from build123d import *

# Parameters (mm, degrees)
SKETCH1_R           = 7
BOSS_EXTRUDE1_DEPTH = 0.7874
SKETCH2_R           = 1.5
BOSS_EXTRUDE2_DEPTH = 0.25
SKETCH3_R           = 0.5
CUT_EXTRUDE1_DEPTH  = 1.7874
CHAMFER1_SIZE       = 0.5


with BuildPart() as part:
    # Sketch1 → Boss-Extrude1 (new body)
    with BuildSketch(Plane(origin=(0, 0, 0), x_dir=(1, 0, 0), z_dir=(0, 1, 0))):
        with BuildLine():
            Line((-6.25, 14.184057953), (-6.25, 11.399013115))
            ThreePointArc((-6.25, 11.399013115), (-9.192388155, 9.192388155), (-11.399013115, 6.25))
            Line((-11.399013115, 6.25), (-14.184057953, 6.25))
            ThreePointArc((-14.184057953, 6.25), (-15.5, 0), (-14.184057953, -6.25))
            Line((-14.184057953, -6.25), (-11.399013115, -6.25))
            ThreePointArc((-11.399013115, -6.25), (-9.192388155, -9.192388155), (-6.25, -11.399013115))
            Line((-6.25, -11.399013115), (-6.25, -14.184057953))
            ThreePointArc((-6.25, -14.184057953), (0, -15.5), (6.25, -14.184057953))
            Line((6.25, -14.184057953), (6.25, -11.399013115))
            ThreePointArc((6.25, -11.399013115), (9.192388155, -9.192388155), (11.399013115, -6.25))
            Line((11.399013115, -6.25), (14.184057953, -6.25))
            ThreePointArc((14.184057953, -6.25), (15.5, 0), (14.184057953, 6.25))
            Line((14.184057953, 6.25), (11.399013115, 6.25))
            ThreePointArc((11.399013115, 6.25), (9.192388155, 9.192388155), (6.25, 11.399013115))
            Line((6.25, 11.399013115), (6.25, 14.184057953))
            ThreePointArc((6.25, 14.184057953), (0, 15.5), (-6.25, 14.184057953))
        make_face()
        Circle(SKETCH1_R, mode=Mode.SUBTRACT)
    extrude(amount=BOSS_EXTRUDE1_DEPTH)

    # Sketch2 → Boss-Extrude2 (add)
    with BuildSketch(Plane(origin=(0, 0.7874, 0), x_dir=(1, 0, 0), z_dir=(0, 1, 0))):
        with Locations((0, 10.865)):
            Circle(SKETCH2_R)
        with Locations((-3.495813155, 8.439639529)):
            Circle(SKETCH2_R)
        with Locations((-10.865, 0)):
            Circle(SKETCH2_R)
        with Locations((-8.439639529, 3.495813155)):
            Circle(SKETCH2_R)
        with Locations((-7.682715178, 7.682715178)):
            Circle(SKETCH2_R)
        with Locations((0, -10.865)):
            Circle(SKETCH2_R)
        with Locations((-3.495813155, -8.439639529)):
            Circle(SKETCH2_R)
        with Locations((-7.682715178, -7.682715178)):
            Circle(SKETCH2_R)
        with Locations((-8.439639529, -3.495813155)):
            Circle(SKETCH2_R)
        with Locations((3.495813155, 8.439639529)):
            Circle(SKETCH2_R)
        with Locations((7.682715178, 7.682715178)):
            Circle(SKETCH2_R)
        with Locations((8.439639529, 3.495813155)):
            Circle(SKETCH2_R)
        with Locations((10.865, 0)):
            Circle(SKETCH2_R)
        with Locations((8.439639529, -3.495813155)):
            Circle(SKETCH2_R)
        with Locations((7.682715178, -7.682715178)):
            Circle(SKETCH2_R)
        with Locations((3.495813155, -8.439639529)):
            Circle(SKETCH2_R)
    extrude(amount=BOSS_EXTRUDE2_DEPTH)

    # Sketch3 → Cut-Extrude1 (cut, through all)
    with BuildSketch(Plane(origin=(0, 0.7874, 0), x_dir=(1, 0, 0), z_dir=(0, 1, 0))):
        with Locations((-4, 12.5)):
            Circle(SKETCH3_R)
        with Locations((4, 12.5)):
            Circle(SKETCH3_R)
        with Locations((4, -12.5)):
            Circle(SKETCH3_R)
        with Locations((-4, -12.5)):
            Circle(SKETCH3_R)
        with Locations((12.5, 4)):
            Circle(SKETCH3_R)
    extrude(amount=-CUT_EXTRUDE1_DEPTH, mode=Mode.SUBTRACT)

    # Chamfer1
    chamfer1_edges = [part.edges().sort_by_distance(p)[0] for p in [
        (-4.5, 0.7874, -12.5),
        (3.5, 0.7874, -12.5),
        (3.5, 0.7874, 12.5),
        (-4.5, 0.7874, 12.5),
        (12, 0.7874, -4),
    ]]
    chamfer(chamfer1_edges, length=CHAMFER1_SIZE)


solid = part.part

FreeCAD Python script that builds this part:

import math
import FreeCAD as App
import Part
import Sketcher


def edges_at(feature, points):
    """Names of the edges that pass closest to the given points."""
    edges = feature.Shape.Edges
    near = lambda p: min(range(len(edges)), key=lambda i: edges[i].distToShape(Part.Vertex(*p))[0])
    return sorted({f"Edge{near(p) + 1}" for p in points})

doc = App.newDocument("Part")
params = doc.addObject("Spreadsheet::Sheet", "Params")
for row, (alias, value) in enumerate([
    ("sketch1_diameter", "14 mm"),
    ("sketch1_radius", "13 mm"),
    ("sketch1_radius2", "15.5 mm"),
    ("pad1_length", "0.7874 mm"),
    ("sketch2_diameter", "3 mm"),
    ("pad2_length", "0.25 mm"),
    ("sketch3_diameter", "1 mm"),
    ("chamfer_size", "0.5 mm"),
], start=1):
    params.set(f"A{row}", alias)
    params.set(f"B{row}", "=" + value)
    params.setAlias(f"B{row}", alias)

body = doc.addObject("PartDesign::Body", "Body")

sketch1 = doc.addObject("Sketcher::SketchObject", "Sketch")
body.addObject(sketch1)
sketch1.AttachmentSupport = (doc.XZ_Plane, [""])
sketch1.MapMode = "FlatFace"
sketch1.addGeometry([
    Part.LineSegment(App.Vector(-6.2, -14.2, 0), App.Vector(-6.2, -11.4, 0)),
    Part.ArcOfCircle(Part.Circle(App.Vector(0, 0, 0), App.Vector(0, 0, 1), 13), math.radians(-151), math.radians(-119)),
    Part.LineSegment(App.Vector(-11.4, -6.2, 0), App.Vector(-14.2, -6.2, 0)),
    Part.ArcOfCircle(Part.Circle(App.Vector(0, 0, 0), App.Vector(0, 0, 1), 15.5), math.radians(156), math.radians(204)),
    Part.LineSegment(App.Vector(-14.2, 6.2, 0), App.Vector(-11.4, 6.2, 0)),
    Part.ArcOfCircle(Part.Circle(App.Vector(0, 0, 0), App.Vector(0, 0, 1), 13), math.radians(119), math.radians(151)),
    Part.LineSegment(App.Vector(-6.2, 11.4, 0), App.Vector(-6.2, 14.2, 0)),
    Part.ArcOfCircle(Part.Circle(App.Vector(0, 0, 0), App.Vector(0, 0, 1), 15.5), math.radians(66), math.radians(114)),
    Part.LineSegment(App.Vector(6.2, 14.2, 0), App.Vector(6.2, 11.4, 0)),
    Part.ArcOfCircle(Part.Circle(App.Vector(0, 0, 0), App.Vector(0, 0, 1), 13), math.radians(29), math.radians(61)),
    Part.LineSegment(App.Vector(11.4, 6.2, 0), App.Vector(14.2, 6.2, 0)),
    Part.ArcOfCircle(Part.Circle(App.Vector(0, 0, 0), App.Vector(0, 0, 1), 15.5), math.radians(-24), math.radians(24)),
    Part.LineSegment(App.Vector(14.2, -6.2, 0), App.Vector(11.4, -6.2, 0)),
    Part.ArcOfCircle(Part.Circle(App.Vector(0, 0, 0), App.Vector(0, 0, 1), 13), math.radians(-61), math.radians(-29)),
    Part.LineSegment(App.Vector(6.2, -11.4, 0), App.Vector(6.2, -14.2, 0)),
    Part.ArcOfCircle(Part.Circle(App.Vector(0, 0, 0), App.Vector(0, 0, 1), 15.5), math.radians(-114), math.radians(-66)),
    Part.Circle(App.Vector(0, 0, 0), App.Vector(0, 0, 1), 7),
], False)
sketch1.addConstraint([
    Sketcher.Constraint("Coincident", 0, 2, 1, 2),
    Sketcher.Constraint("Coincident", 1, 1, 2, 1),
    Sketcher.Constraint("Coincident", 2, 2, 3, 2),
    Sketcher.Constraint("Coincident", 3, 1, 4, 1),
    Sketcher.Constraint("Coincident", 4, 2, 5, 2),
    Sketcher.Constraint("Coincident", 5, 1, 6, 1),
    Sketcher.Constraint("Coincident", 6, 2, 7, 2),
    Sketcher.Constraint("Coincident", 7, 1, 8, 1),
    Sketcher.Constraint("Coincident", 8, 2, 9, 2),
    Sketcher.Constraint("Coincident", 9, 1, 10, 1),
    Sketcher.Constraint("Coincident", 10, 2, 11, 2),
    Sketcher.Constraint("Coincident", 11, 1, 12, 1),
    Sketcher.Constraint("Coincident", 12, 2, 13, 2),
    Sketcher.Constraint("Coincident", 13, 1, 14, 1),
    Sketcher.Constraint("Coincident", 14, 2, 15, 2),
    Sketcher.Constraint("Coincident", 15, 1, 0, 1),
    Sketcher.Constraint("Vertical", 0),
    Sketcher.Constraint("Horizontal", 2),
    Sketcher.Constraint("Horizontal", 4),
    Sketcher.Constraint("Vertical", 6),
    Sketcher.Constraint("Vertical", 8),
    Sketcher.Constraint("Horizontal", 10),
    Sketcher.Constraint("Horizontal", 12),
    Sketcher.Constraint("Vertical", 14),
    Sketcher.Constraint("Coincident", 1, 3, -1, 1),
    Sketcher.Constraint("Coincident", 3, 3, -1, 1),
    Sketcher.Constraint("Coincident", 5, 3, -1, 1),
    Sketcher.Constraint("Coincident", 7, 3, -1, 1),
    Sketcher.Constraint("Coincident", 9, 3, -1, 1),
    Sketcher.Constraint("Coincident", 11, 3, -1, 1),
    Sketcher.Constraint("Coincident", 13, 3, -1, 1),
    Sketcher.Constraint("Coincident", 15, 3, -1, 1),
    Sketcher.Constraint("Coincident", 16, 3, -1, 1),
    Sketcher.Constraint("Equal", 1, 5),
    Sketcher.Constraint("Equal", 3, 7),
    Sketcher.Constraint("Equal", 5, 9),
    Sketcher.Constraint("Equal", 7, 11),
    Sketcher.Constraint("Equal", 9, 13),
    Sketcher.Constraint("Equal", 11, 15),
    Sketcher.Constraint("Horizontal", 6, 2, 7, 1),
    Sketcher.Constraint("Horizontal", 4, 2, 9, 1),
    Sketcher.Constraint("Horizontal", 2, 2, 11, 1),
    Sketcher.Constraint("Horizontal", 0, 2, 13, 1),
    Sketcher.Constraint("Vertical", 2, 2, 3, 1),
    Sketcher.Constraint("Vertical", 0, 2, 5, 1),
    Sketcher.Constraint("Equal", 12, 0),
    Sketcher.Constraint("Diameter", 16, 14.0),
    Sketcher.Constraint("Radius", 1, 13.0),
    Sketcher.Constraint("Radius", 3, 15.5),
    Sketcher.Constraint("DistanceY", 2, 2, 3, 1, 12.5),
])
sketch1.setExpression("Constraints[46]", "Params.sketch1_diameter")
sketch1.setExpression("Constraints[47]", "Params.sketch1_radius")
sketch1.setExpression("Constraints[48]", "Params.sketch1_radius2")
pad1 = doc.addObject("PartDesign::Pad", "Pad")
body.addObject(pad1)
pad1.Profile = sketch1
pad1.setExpression("Length", "Params.pad1_length")
pad1.Reversed = True

sketch2 = doc.addObject("Sketcher::SketchObject", "Sketch001")
body.addObject(sketch2)
sketch2.AttachmentSupport = (doc.XZ_Plane, [""])
sketch2.MapMode = "FlatFace"
sketch2.AttachmentOffset = App.Placement(App.Vector(0, 0, -0.7874), App.Rotation())
sketch2.addGeometry([
    Part.Circle(App.Vector(0, -10.9, 0), App.Vector(0, 0, 1), 1.5),
    Part.Circle(App.Vector(-3.5, -8.4, 0), App.Vector(0, 0, 1), 1.5),
    Part.Circle(App.Vector(-10.9, 0, 0), App.Vector(0, 0, 1), 1.5),
    Part.Circle(App.Vector(-8.4, -3.5, 0), App.Vector(0, 0, 1), 1.5),
    Part.Circle(App.Vector(-7.7, -7.7, 0), App.Vector(0, 0, 1), 1.5),
    Part.Circle(App.Vector(0, 10.9, 0), App.Vector(0, 0, 1), 1.5),
    Part.Circle(App.Vector(-3.5, 8.4, 0), App.Vector(0, 0, 1), 1.5),
    Part.Circle(App.Vector(-7.7, 7.7, 0), App.Vector(0, 0, 1), 1.5),
    Part.Circle(App.Vector(-8.4, 3.5, 0), App.Vector(0, 0, 1), 1.5),
    Part.Circle(App.Vector(3.5, -8.4, 0), App.Vector(0, 0, 1), 1.5),
    Part.Circle(App.Vector(7.7, -7.7, 0), App.Vector(0, 0, 1), 1.5),
    Part.Circle(App.Vector(8.4, -3.5, 0), App.Vector(0, 0, 1), 1.5),
    Part.Circle(App.Vector(10.9, 0, 0), App.Vector(0, 0, 1), 1.5),
    Part.Circle(App.Vector(8.4, 3.5, 0), App.Vector(0, 0, 1), 1.5),
    Part.Circle(App.Vector(7.7, 7.7, 0), App.Vector(0, 0, 1), 1.5),
    Part.Circle(App.Vector(3.5, 8.4, 0), App.Vector(0, 0, 1), 1.5),
], False)
sketch2.addConstraint([
    Sketcher.Constraint("Equal", 0, 1),
    Sketcher.Constraint("Equal", 1, 2),
    Sketcher.Constraint("Equal", 2, 3),
    Sketcher.Constraint("Equal", 3, 4),
    Sketcher.Constraint("Equal", 4, 5),
    Sketcher.Constraint("Equal", 5, 6),
    Sketcher.Constraint("Equal", 6, 7),
    Sketcher.Constraint("Equal", 7, 8),
    Sketcher.Constraint("Equal", 8, 9),
    Sketcher.Constraint("Equal", 9, 10),
    Sketcher.Constraint("Equal", 10, 11),
    Sketcher.Constraint("Equal", 11, 12),
    Sketcher.Constraint("Equal", 12, 13),
    Sketcher.Constraint("Equal", 13, 14),
    Sketcher.Constraint("Equal", 14, 15),
    Sketcher.Constraint("Symmetric", 0, 3, 5, 3, -1, 1),
    Sketcher.Constraint("Symmetric", 6, 3, 9, 3, -1, 1),
    Sketcher.Constraint("Symmetric", 7, 3, 10, 3, -1, 1),
    Sketcher.Constraint("Symmetric", 8, 3, 11, 3, -1, 1),
    Sketcher.Constraint("Symmetric", 2, 3, 12, 3, -1, 1),
    Sketcher.Constraint("Symmetric", 3, 3, 13, 3, -1, 1),
    Sketcher.Constraint("Symmetric", 4, 3, 14, 3, -1, 1),
    Sketcher.Constraint("Symmetric", 1, 3, 15, 3, -1, 1),
    Sketcher.Constraint("Symmetric", 1, 3, 9, 3, -2),
    Sketcher.Constraint("Symmetric", 4, 3, 10, 3, -2),
    Sketcher.Constraint("Symmetric", 3, 3, 11, 3, -2),
    Sketcher.Constraint("PointOnObject", 0, 3, -2),
    Sketcher.Constraint("PointOnObject", 2, 3, -1),
    Sketcher.Constraint("Diameter", 0, 3.0),
    Sketcher.Constraint("DistanceY", 0, 3, 5, 3, 21.73),
    Sketcher.Constraint("DistanceX", 2, 3, -1, 1, 10.865),
    Sketcher.Constraint("DistanceY", 1, 3, -1, 1, 8.43964),
    Sketcher.Constraint("DistanceX", 3, 3, -1, 1, 8.43964),
    Sketcher.Constraint("DistanceY", 3, 3, 7, 3, 11.178528),
    Sketcher.Constraint("DistanceY", 4, 3, 7, 3, 15.36543),
    Sketcher.Constraint("DistanceX", 4, 3, 9, 3, 11.178528),
    Sketcher.Constraint("DistanceX", 4, 3, 10, 3, 15.36543),
])
sketch2.setExpression("Constraints[28]", "Params.sketch2_diameter")
pad2 = doc.addObject("PartDesign::Pad", "Pad001")
body.addObject(pad2)
pad2.Profile = sketch2
pad2.setExpression("Length", "Params.pad2_length")
pad2.Reversed = True

sketch3 = doc.addObject("Sketcher::SketchObject", "Sketch002")
body.addObject(sketch3)
sketch3.AttachmentSupport = (doc.XZ_Plane, [""])
sketch3.MapMode = "FlatFace"
sketch3.AttachmentOffset = App.Placement(App.Vector(0, 0, -0.7874), App.Rotation())
sketch3.addGeometry([
    Part.Circle(App.Vector(-4, -12.5, 0), App.Vector(0, 0, 1), 0.5),
    Part.Circle(App.Vector(4, -12.5, 0), App.Vector(0, 0, 1), 0.5),
    Part.Circle(App.Vector(4, 12.5, 0), App.Vector(0, 0, 1), 0.5),
    Part.Circle(App.Vector(-4, 12.5, 0), App.Vector(0, 0, 1), 0.5),
    Part.Circle(App.Vector(12.5, -4, 0), App.Vector(0, 0, 1), 0.5),
], False)
sketch3.addConstraint([
    Sketcher.Constraint("Equal", 0, 1),
    Sketcher.Constraint("Equal", 1, 2),
    Sketcher.Constraint("Equal", 2, 3),
    Sketcher.Constraint("Equal", 3, 4),
    Sketcher.Constraint("Symmetric", 0, 3, 2, 3, -1, 1),
    Sketcher.Constraint("Symmetric", 1, 3, 3, 3, -1, 1),
    Sketcher.Constraint("Symmetric", 0, 3, 1, 3, -2),
    Sketcher.Constraint("Diameter", 0, 1.0),
    Sketcher.Constraint("DistanceX", 0, 3, -1, 1, 4.0),
    Sketcher.Constraint("DistanceY", 4, 3, -1, 1, 4.0),
    Sketcher.Constraint("DistanceY", 1, 3, 2, 3, 25.0),
    Sketcher.Constraint("DistanceX", -1, 1, 4, 3, 12.5),
])
sketch3.setExpression("Constraints[7]", "Params.sketch3_diameter")
pocket1 = doc.addObject("PartDesign::Pocket", "Pocket")
body.addObject(pocket1)
pocket1.Profile = sketch3
pocket1.Type = "ThroughAll"
pocket1.Reversed = True
doc.recompute()

chamfer = doc.addObject("PartDesign::Chamfer", "Chamfer")
body.addObject(chamfer)
chamfer.Base = (pocket1, edges_at(pocket1, [
    (-4.5, 0.787, -12.5),
    (3.5, 0.787, -12.5),
    (3.5, 0.787, 12.5),
    (-4.5, 0.787, 12.5),
    (12, 0.787, -4),
]))
chamfer.setExpression("Size", "Params.chamfer_size")

doc.recompute()
